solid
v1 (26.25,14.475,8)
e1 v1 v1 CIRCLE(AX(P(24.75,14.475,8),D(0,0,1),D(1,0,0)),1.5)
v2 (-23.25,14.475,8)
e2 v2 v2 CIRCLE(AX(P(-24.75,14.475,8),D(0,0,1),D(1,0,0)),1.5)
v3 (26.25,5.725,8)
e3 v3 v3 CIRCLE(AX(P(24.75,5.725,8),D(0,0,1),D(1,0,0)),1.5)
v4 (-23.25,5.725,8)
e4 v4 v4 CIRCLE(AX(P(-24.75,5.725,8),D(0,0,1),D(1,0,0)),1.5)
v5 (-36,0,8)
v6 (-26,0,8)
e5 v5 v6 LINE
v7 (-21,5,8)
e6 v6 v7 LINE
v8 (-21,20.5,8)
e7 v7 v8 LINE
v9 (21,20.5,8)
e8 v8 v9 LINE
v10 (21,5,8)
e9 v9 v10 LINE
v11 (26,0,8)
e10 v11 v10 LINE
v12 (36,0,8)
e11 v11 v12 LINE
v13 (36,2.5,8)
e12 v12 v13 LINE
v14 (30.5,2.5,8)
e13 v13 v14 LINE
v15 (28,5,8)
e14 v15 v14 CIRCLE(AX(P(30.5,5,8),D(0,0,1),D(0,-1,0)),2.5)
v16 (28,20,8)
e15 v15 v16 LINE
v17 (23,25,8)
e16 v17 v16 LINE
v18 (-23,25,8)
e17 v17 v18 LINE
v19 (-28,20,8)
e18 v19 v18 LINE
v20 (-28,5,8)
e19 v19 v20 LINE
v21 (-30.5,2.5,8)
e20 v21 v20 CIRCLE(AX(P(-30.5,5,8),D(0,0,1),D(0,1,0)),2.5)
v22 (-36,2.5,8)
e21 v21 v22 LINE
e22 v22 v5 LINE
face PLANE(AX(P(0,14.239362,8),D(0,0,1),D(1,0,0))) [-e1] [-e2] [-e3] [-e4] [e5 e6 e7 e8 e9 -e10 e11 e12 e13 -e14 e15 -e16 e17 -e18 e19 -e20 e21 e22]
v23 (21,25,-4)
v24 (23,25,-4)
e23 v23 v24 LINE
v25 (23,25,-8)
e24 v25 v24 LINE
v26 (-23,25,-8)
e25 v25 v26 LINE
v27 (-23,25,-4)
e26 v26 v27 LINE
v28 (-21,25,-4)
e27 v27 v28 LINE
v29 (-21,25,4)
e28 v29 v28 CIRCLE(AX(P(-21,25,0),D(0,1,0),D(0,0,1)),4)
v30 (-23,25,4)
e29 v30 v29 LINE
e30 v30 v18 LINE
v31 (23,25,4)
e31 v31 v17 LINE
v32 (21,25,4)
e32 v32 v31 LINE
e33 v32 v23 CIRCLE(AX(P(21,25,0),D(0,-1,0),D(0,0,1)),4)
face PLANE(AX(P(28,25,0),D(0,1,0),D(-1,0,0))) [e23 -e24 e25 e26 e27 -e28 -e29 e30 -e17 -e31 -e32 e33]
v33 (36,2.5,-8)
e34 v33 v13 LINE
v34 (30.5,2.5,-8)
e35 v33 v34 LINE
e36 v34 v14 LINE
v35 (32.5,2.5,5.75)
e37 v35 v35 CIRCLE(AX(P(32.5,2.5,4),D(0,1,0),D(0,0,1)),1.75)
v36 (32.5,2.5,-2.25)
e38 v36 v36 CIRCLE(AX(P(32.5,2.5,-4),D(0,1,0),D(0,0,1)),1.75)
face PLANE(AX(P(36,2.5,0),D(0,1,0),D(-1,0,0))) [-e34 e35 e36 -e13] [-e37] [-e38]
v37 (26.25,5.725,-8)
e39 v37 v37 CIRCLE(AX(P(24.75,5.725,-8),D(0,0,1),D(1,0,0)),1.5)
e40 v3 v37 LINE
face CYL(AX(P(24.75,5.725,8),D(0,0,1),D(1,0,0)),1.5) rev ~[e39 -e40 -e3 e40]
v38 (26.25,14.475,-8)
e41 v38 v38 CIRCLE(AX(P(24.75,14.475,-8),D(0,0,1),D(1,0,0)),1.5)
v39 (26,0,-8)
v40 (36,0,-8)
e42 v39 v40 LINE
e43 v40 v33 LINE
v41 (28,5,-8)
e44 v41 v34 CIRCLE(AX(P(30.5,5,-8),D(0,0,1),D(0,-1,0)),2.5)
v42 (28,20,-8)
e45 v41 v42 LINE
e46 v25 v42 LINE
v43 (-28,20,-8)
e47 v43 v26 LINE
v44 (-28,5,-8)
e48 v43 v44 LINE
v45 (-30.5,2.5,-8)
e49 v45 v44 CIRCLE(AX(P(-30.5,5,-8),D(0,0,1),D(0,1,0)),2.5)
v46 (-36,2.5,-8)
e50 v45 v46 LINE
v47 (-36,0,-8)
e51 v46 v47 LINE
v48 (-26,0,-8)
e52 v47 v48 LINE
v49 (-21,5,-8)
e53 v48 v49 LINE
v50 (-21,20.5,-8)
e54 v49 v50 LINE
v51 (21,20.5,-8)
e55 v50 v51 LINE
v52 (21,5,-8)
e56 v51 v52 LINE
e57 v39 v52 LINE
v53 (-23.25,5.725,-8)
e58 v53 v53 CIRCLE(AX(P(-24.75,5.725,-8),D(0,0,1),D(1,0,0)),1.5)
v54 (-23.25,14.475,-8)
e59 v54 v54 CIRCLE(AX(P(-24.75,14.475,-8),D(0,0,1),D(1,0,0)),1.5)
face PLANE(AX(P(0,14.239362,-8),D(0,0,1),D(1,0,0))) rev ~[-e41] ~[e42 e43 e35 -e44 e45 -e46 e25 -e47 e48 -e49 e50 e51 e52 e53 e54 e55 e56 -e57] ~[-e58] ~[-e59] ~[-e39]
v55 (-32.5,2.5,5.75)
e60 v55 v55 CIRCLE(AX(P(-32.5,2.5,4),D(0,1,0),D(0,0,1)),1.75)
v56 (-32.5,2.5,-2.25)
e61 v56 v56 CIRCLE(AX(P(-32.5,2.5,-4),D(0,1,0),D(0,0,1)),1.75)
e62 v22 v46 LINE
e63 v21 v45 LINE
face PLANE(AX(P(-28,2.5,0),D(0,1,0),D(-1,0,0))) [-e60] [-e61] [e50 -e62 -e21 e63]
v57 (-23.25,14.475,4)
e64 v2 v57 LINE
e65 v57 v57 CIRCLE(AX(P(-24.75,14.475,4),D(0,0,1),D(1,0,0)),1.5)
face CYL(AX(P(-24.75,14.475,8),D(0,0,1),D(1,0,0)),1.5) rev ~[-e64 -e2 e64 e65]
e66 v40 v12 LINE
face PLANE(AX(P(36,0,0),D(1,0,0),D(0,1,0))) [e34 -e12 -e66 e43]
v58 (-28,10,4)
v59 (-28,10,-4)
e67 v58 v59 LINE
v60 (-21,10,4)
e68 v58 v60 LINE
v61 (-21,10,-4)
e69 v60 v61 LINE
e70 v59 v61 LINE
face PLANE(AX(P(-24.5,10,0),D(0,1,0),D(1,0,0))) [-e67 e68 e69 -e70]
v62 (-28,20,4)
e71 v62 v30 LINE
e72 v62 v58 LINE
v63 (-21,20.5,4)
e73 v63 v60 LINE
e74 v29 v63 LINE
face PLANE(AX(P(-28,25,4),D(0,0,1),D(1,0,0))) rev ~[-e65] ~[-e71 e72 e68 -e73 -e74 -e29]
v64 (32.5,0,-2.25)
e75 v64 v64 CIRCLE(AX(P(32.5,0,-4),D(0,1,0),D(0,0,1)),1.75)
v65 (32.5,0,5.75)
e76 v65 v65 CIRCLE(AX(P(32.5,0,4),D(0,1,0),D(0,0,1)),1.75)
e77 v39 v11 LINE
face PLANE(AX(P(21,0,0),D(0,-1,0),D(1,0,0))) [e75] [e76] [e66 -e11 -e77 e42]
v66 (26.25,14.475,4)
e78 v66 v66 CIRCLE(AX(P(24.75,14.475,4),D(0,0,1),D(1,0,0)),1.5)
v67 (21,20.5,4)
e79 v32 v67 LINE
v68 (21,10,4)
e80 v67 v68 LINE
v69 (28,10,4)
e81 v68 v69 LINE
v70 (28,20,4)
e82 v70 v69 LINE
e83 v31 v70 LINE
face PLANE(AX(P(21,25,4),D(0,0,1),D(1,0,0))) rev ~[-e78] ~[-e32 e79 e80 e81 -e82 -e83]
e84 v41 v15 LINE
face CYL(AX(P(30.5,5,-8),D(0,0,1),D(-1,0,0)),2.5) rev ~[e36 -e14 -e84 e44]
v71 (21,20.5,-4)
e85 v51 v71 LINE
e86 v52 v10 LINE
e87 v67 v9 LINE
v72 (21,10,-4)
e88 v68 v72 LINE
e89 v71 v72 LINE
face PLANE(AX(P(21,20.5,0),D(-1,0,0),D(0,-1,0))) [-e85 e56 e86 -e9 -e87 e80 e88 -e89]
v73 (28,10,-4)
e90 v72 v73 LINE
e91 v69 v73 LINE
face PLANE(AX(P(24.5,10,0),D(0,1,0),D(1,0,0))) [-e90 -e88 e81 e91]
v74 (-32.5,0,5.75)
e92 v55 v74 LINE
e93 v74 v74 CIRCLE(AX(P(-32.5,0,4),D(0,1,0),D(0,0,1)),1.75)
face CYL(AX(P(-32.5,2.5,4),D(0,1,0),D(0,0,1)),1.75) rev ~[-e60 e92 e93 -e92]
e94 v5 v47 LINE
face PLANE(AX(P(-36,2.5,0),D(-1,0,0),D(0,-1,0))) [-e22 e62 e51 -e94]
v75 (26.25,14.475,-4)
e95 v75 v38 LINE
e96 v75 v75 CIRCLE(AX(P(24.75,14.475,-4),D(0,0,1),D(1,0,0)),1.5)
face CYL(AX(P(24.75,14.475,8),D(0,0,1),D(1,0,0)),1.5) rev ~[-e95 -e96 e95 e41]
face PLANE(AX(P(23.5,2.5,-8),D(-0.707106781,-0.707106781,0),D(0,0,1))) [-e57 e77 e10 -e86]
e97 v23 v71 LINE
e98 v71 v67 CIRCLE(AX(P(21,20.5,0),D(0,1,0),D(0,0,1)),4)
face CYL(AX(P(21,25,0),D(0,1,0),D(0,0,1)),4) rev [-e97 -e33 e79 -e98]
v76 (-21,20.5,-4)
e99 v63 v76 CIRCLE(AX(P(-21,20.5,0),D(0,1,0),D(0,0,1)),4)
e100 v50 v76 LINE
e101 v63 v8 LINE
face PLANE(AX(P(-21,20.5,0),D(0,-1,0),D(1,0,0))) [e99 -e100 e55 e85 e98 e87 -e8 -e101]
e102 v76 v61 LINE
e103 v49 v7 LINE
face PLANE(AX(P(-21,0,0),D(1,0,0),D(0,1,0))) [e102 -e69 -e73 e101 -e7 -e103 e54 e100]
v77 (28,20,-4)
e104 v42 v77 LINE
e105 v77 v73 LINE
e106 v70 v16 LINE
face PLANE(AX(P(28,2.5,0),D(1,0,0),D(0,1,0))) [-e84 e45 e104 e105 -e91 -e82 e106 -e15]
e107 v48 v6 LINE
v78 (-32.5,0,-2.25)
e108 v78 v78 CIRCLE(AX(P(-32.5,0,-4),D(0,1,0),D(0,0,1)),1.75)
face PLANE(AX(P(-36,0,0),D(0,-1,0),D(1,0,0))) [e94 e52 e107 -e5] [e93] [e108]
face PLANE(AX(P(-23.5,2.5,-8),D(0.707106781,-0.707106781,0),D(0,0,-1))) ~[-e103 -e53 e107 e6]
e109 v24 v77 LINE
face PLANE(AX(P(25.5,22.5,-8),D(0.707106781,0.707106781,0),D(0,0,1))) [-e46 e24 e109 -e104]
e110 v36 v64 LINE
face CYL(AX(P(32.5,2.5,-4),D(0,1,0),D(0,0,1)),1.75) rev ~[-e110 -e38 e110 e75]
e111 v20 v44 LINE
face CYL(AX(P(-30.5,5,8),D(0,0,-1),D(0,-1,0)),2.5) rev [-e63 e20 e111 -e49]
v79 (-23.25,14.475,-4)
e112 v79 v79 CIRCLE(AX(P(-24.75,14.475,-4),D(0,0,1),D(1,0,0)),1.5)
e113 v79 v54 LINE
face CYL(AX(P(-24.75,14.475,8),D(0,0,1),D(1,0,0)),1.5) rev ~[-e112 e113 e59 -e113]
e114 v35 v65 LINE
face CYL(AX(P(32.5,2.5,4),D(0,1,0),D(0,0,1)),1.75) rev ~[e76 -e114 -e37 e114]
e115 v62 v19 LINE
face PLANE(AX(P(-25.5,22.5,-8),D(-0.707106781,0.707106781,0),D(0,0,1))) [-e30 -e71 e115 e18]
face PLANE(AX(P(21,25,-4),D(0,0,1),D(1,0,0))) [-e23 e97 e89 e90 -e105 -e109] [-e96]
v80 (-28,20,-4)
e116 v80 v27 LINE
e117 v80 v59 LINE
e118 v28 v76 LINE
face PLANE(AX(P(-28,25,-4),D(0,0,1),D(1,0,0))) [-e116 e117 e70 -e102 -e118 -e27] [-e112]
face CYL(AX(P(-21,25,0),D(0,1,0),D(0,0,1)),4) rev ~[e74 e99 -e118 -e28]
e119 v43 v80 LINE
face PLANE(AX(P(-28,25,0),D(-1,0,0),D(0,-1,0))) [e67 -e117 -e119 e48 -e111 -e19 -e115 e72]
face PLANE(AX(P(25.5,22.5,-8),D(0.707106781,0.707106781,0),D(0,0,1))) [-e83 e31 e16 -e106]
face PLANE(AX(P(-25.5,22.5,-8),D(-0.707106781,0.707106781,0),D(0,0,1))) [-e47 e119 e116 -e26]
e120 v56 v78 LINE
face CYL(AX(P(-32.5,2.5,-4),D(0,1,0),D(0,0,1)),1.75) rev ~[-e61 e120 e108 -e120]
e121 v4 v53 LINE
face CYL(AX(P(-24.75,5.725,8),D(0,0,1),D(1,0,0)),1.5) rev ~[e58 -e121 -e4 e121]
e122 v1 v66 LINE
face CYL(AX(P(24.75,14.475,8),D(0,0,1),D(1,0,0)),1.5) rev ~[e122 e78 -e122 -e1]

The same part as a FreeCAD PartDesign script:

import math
import FreeCAD as App
import Part
import Sketcher


def edges_at(feature, points):
    """Names of the edges that pass closest to the given points."""
    edges = feature.Shape.Edges
    near = lambda p: min(range(len(edges)), key=lambda i: edges[i].distToShape(Part.Vertex(*p))[0])
    return sorted({f"Edge{near(p) + 1}" for p in points})


def add_polygon(sketch, points):
    """Adds a closed chain of lines whose ends are joined by coincident constraints."""
    first, n = sketch.GeometryCount, len(points)
    for a, b in zip(points, points[1:] + points[:1]):
        sketch.addGeometry(Part.LineSegment(App.Vector(*a, 0), App.Vector(*b, 0)), False)
    for i in range(n):
        sketch.addConstraint(Sketcher.Constraint("Coincident", first + i, 2, first + (i + 1) % n, 1))

doc = App.newDocument("Part")
body = doc.addObject("PartDesign::Body", "Body")

sketch1 = doc.addObject("Sketcher::SketchObject", "Sketch")
body.addObject(sketch1)
sketch1.AttachmentSupport = (doc.XY_Plane, [""])
sketch1.MapMode = "FlatFace"
add_polygon(sketch1, [(-36, 0), (-21, 0), (-21, 20.5), (21, 20.5), (21, 0), (36, 0), (36, 2.5), (28, 2.5), (28, 25), (-28, 25), (-28, 2.5), (-36, 2.5)])
sketch1.addConstraint(Sketcher.Constraint("Horizontal", 0))
sketch1.addConstraint(Sketcher.Constraint("Vertical", 1))
sketch1.addConstraint(Sketcher.Constraint("Horizontal", 2))
sketch1.addConstraint(Sketcher.Constraint("Vertical", 3))
sketch1.addConstraint(Sketcher.Constraint("Horizontal", 4))
sketch1.addConstraint(Sketcher.Constraint("Vertical", 5))
sketch1.addConstraint(Sketcher.Constraint("Horizontal", 6))
sketch1.addConstraint(Sketcher.Constraint("Vertical", 7))
sketch1.addConstraint(Sketcher.Constraint("Horizontal", 8))
sketch1.addConstraint(Sketcher.Constraint("Vertical", 9))
sketch1.addConstraint(Sketcher.Constraint("Horizontal", 10))
sketch1.addConstraint(Sketcher.Constraint("Vertical", 11))
sketch1.addConstraint(Sketcher.Constraint("Symmetric", 0, 2, 3, 2, -1, 1))
sketch1.addConstraint(Sketcher.Constraint("Symmetric", 6, 2, 9, 2, -2))
sketch1.addConstraint(Sketcher.Constraint("Symmetric", 4, 2, 11, 2, -2))
sketch1.addConstraint(Sketcher.Constraint("DistanceX", 0, 1, 0, 2, 15.0))
sketch1.addConstraint(Sketcher.Constraint("DistanceX", 2, 1, 2, 2, 42.0))
sketch1.addConstraint(Sketcher.Constraint("DistanceX", 6, 2, 6, 1, 8.0))
sketch1.addConstraint(Sketcher.Constraint("DistanceY", 1, 1, 1, 2, 20.5))
sketch1.addConstraint(Sketcher.Constraint("DistanceY", 5, 1, 5, 2, 2.5))
sketch1.addConstraint(Sketcher.Constraint("DistanceY", 7, 1, 7, 2, 22.5))
pad1 = doc.addObject("PartDesign::Pad", "Pad")
body.addObject(pad1)
pad1.Profile = sketch1
pad1.Length = 16
pad1.Midplane = True
doc.recompute()

chamfer = doc.addObject("PartDesign::Chamfer", "Chamfer")
body.addObject(chamfer)
chamfer.Base = (pad1, edges_at(pad1, [
    (-28, 25, 0),
    (28, 25, 0),
    (21, 0, 0),
    (-21, 0, 0),
]))
chamfer.Size = 5
doc.recompute()

fillet = doc.addObject("PartDesign::Fillet", "Fillet")
body.addObject(fillet)
fillet.Base = (chamfer, edges_at(chamfer, [(-28, 2.5, 0), (28, 2.5, 0)]))
fillet.Radius = 2.5

sketch2 = doc.addObject("Sketcher::SketchObject", "Sketch001")
body.addObject(sketch2)
sketch2.AttachmentSupport = (doc.XY_Plane, [""])
sketch2.MapMode = "FlatFace"
sketch2.AttachmentOffset = App.Placement(App.Vector(0, 0, 8), App.Rotation())
sketch2.addGeometry(Part.Circle(App.Vector(-24.8, 14.5, 0), App.Vector(0, 0, 1), 1.5), False)
sketch2.addGeometry(Part.Circle(App.Vector(-24.8, 5.7, 0), App.Vector(0, 0, 1), 1.5), False)
sketch2.addGeometry(Part.Circle(App.Vector(24.8, 14.5, 0), App.Vector(0, 0, 1), 1.5), False)
sketch2.addGeometry(Part.Circle(App.Vector(24.8, 5.7, 0), App.Vector(0, 0, 1), 1.5), False)
sketch2.addConstraint(Sketcher.Constraint("Equal", 0, 1))
sketch2.addConstraint(Sketcher.Constraint("Equal", 1, 2))
sketch2.addConstraint(Sketcher.Constraint("Equal", 2, 3))
sketch2.addConstraint(Sketcher.Constraint("Symmetric", 0, 3, 2, 3, -2))
sketch2.addConstraint(Sketcher.Constraint("Symmetric", 1, 3, 3, 3, -2))
sketch2.addConstraint(Sketcher.Constraint("Vertical", 0, 3, 1, 3))
sketch2.addConstraint(Sketcher.Constraint("Diameter", 0, 3.0))
sketch2.addConstraint(Sketcher.Constraint("DistanceX", 0, 3, 2, 3, 49.5))
sketch2.addConstraint(Sketcher.Constraint("DistanceY", 1, 3, 0, 3, 8.75))
sketch2.addConstraint(Sketcher.Constraint("DistanceY", -1, 1, 0, 3, 14.475))
pocket1 = doc.addObject("PartDesign::Pocket", "Pocket")
body.addObject(pocket1)
pocket1.Profile = sketch2
pocket1.Type = "ThroughAll"

sketch3 = doc.addObject("Sketcher::SketchObject", "Sketch002")
body.addObject(sketch3)
sketch3.AttachmentSupport = (doc.XZ_Plane, [""])
sketch3.MapMode = "FlatFace"
sketch3.AttachmentOffset = App.Placement(App.Vector(0, 0, -2.5), App.Rotation())
sketch3.addGeometry(Part.Circle(App.Vector(32.5, -4, 0), App.Vector(0, 0, 1), 1.8), False)
sketch3.addGeometry(Part.Circle(App.Vector(32.5, 4, 0), App.Vector(0, 0, 1), 1.8), False)
sketch3.addGeometry(Part.Circle(App.Vector(-32.5, -4, 0), App.Vector(0, 0, 1), 1.8), False)
sketch3.addGeometry(Part.Circle(App.Vector(-32.5, 4, 0), App.Vector(0, 0, 1), 1.8), False)
sketch3.addConstraint(Sketcher.Constraint("Equal", 0, 1))
sketch3.addConstraint(Sketcher.Constraint("Equal", 1, 2))
sketch3.addConstraint(Sketcher.Constraint("Equal", 2, 3))
sketch3.addConstraint(Sketcher.Constraint("Symmetric", 1, 3, 2, 3, -1, 1))
sketch3.addConstraint(Sketcher.Constraint("Symmetric", 0, 3, 3, 3, -1, 1))
sketch3.addConstraint(Sketcher.Constraint("Symmetric", 0, 3, 2, 3, -2))
sketch3.addConstraint(Sketcher.Constraint("Diameter", 0, 3.5))
sketch3.addConstraint(Sketcher.Constraint("DistanceY", 0, 3, -1, 1, 4.0))
sketch3.addConstraint(Sketcher.Constraint("DistanceX", 2, 3, 0, 3, 65.0))
pocket2 = doc.addObject("PartDesign::Pocket", "Pocket001")
body.addObject(pocket2)
pocket2.Profile = sketch3
pocket2.Type = "ThroughAll"
pocket2.Reversed = True

sketch4 = doc.addObject("Sketcher::SketchObject", "Sketch003")
body.addObject(sketch4)
sketch4.AttachmentSupport = (doc.XZ_Plane, [""])
sketch4.MapMode = "FlatFace"
sketch4.AttachmentOffset = App.Placement(App.Vector(0, 0, -25), App.Rotation())
add_polygon(sketch4, [(21, -4), (21, 4), (28, 4), (28, -4)])
add_polygon(sketch4, [(-28, -4), (-28, 4), (-21, 4), (-21, -4)])
sketch4.addConstraint(Sketcher.Constraint("Vertical", 0))
sketch4.addConstraint(Sketcher.Constraint("Horizontal", 1))
sketch4.addConstraint(Sketcher.Constraint("Vertical", 2))
sketch4.addConstraint(Sketcher.Constraint("Horizontal", 3))
sketch4.addConstraint(Sketcher.Constraint("Vertical", 4))
sketch4.addConstraint(Sketcher.Constraint("Horizontal", 5))
sketch4.addConstraint(Sketcher.Constraint("Vertical", 6))
sketch4.addConstraint(Sketcher.Constraint("Horizontal", 7))
sketch4.addConstraint(Sketcher.Constraint("Symmetric", 2, 2, 4, 2, -1, 1))
sketch4.addConstraint(Sketcher.Constraint("Symmetric", 0, 2, 6, 2, -1, 1))
sketch4.addConstraint(Sketcher.Constraint("Horizontal", 1, 2, 4, 2))
sketch4.addConstraint(Sketcher.Constraint("DistanceX", 1, 1, 1, 2, 7.0))
sketch4.addConstraint(Sketcher.Constraint("DistanceY", 0, 1, 0, 2, 8.0))
sketch4.addConstraint(Sketcher.Constraint("DistanceX", -1, 1, 0, 2, 21.0))
pocket3 = doc.addObject("PartDesign::Pocket", "Pocket002")
body.addObject(pocket3)
pocket3.Profile = sketch4
pocket3.Length = 15
pocket3.Reversed = True

sketch5 = doc.addObject("Sketcher::SketchObject", "Sketch004")
body.addObject(sketch5)
sketch5.AttachmentSupport = (doc.XZ_Plane, [""])
sketch5.MapMode = "FlatFace"
sketch5.AttachmentOffset = App.Placement(App.Vector(0, 0, -25), App.Rotation())
sketch5.addGeometry(Part.LineSegment(App.Vector(21, 4, 0), App.Vector(21, -4, 0)), False)
sketch5.addGeometry(Part.ArcOfCircle(Part.Circle(App.Vector(21, 0, 0), App.Vector(0, 0, 1), 4), math.radians(90), math.radians(270)), False)
sketch5.addGeometry(Part.LineSegment(App.Vector(-21, -4, 0), App.Vector(-21, 4, 0)), False)
sketch5.addGeometry(Part.ArcOfCircle(Part.Circle(App.Vector(-21, 0, 0), App.Vector(0, 0, 1), 4), math.radians(-90), math.radians(90)), False)
sketch5.addConstraint(Sketcher.Constraint("Coincident", 0, 1, 1, 1))
sketch5.addConstraint(Sketcher.Constraint("Coincident", 1, 2, 0, 2))
sketch5.addConstraint(Sketcher.Constraint("Coincident", 2, 1, 3, 1))
sketch5.addConstraint(Sketcher.Constraint("Coincident", 3, 2, 2, 2))
sketch5.addConstraint(Sketcher.Constraint("Vertical", 0))
sketch5.addConstraint(Sketcher.Constraint("Vertical", 2))
sketch5.addConstraint(Sketcher.Constraint("Equal", 1, 3))
sketch5.addConstraint(Sketcher.Constraint("Symmetric", 1, 3, 3, 3, -1, 1))
sketch5.addConstraint(Sketcher.Constraint("Symmetric", 1, 2, 2, 1, -2))
sketch5.addConstraint(Sketcher.Constraint("Vertical", 1, 3, 0, 1))
sketch5.addConstraint(Sketcher.Constraint("Radius", 1, 4.0))
sketch5.addConstraint(Sketcher.Constraint("DistanceX", -1, 1, 1, 3, 21.0))
pocket4 = doc.addObject("PartDesign::Pocket", "Pocket003")
body.addObject(pocket4)
pocket4.Profile = sketch5
pocket4.Length = 15
pocket4.Reversed = True

doc.recompute()
